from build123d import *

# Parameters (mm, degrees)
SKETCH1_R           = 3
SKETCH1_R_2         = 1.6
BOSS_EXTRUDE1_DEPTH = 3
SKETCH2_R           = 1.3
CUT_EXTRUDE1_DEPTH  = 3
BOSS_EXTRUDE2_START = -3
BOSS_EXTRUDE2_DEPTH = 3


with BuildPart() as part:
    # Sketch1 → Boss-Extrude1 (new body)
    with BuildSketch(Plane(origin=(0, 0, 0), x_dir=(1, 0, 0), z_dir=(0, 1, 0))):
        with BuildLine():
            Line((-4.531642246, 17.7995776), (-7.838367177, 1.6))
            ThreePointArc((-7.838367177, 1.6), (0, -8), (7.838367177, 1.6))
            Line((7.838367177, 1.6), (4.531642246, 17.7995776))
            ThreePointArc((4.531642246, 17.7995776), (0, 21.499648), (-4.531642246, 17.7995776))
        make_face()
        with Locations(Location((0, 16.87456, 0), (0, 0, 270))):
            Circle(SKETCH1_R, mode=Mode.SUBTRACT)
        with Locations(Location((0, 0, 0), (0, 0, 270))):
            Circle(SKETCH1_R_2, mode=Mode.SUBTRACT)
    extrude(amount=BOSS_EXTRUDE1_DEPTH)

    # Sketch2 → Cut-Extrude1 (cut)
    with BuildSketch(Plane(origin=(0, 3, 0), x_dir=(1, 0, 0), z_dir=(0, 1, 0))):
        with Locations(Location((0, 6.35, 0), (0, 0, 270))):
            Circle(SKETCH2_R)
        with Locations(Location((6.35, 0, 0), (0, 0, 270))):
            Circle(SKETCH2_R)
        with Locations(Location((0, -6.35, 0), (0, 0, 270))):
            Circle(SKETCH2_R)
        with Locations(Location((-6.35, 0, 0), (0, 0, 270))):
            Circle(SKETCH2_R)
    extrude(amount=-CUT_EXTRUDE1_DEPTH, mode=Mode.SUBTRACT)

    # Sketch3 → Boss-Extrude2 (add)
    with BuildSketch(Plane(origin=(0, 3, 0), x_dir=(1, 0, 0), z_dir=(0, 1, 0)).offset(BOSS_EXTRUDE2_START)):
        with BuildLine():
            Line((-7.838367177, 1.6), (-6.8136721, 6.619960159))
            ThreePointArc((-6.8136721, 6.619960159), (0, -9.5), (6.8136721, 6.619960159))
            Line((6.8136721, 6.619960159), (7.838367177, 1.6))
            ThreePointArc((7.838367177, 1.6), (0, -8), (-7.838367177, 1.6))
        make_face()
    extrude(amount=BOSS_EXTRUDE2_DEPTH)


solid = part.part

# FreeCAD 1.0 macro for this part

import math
import FreeCAD as App
import Part
import Sketcher
Q = App.Units.Quantity

doc = App.newDocument("Part")
params = doc.addObject("Spreadsheet::Sheet", "Params")
for row, (alias, value) in enumerate([
    ("sketch1_diameter", "6 mm"),
    ("sketch1_radius", "8 mm"),
    ("sketch1_diameter2", "3.2 mm"),
    ("pad1_length", "3 mm"),
    ("sketch2_diameter", "2.6 mm"),
    ("pocket1_length", "3 mm"),
    ("sketch3_radius", "8 mm"),
    ("sketch3_radius2", "9.5 mm"),
    ("pad2_length", "3 mm"),
], start=1):
    params.set(f"A{row}", alias)
    params.set(f"B{row}", "=" + value)
    params.setAlias(f"B{row}", alias)

body = doc.addObject("PartDesign::Body", "Body")

# Sketch on XZ plane
sketch1 = body.newObject("Sketcher::SketchObject", "Sketch")
sketch1.AttachmentSupport = (doc.getObject("XZ_Plane"), [""])
sketch1.MapMode = "FlatFace"
sketch1.addGeometry([
    Part.LineSegment(App.Vector(-4.5, -17.8, 0), App.Vector(-7.8, -1.6, 0)),  # 0
    Part.ArcOfCircle(Part.Circle(App.Vector(0, 0, 0), App.Vector(0, 0, 1), 8), math.radians(-12), math.radians(192)),  # 1
    Part.LineSegment(App.Vector(7.8, -1.6, 0), App.Vector(4.5, -17.8, 0)),  # 2
    Part.ArcOfCircle(Part.Circle(App.Vector(0, -16.9, 0), App.Vector(0, 0, 1), 4.6), math.radians(-168), math.radians(-12)),  # 3
    Part.Circle(App.Vector(0, 0, 0), App.Vector(0, 0, 1), 1.6),  # 4
    Part.Circle(App.Vector(0, -16.9, 0), App.Vector(0, 0, 1), 3),  # 5
], False)
sketch1.addConstraint([
    Sketcher.Constraint("Tangent", 0, 2, 1, 2),
    Sketcher.Constraint("Tangent", 1, 1, 2, 1),
    Sketcher.Constraint("Tangent", 2, 2, 3, 2),
    Sketcher.Constraint("Tangent", 3, 1, 0, 1),
    Sketcher.Constraint("Coincident", 1, 3, -1, 1),
    Sketcher.Constraint("Coincident", 4, 3, -1, 1),
    Sketcher.Constraint("Coincident", 5, 3, 3, 3),
    Sketcher.Constraint("PointOnObject", 3, 3, -2),
    Sketcher.Constraint("Diameter", 5, Q("6 mm")),
    Sketcher.Constraint("Radius", 1, Q("8 mm")),
    Sketcher.Constraint("Diameter", 4, Q("3.2 mm")),
    Sketcher.Constraint("DistanceY", 0, 2, -1, 1, Q("1.6 mm")),
    Sketcher.Constraint("Radius", 3, Q("4.625088 mm")),
])
sketch1.setExpression("Constraints[8]", "Params.sketch1_diameter")
sketch1.setExpression("Constraints[9]", "Params.sketch1_radius")
sketch1.setExpression("Constraints[10]", "Params.sketch1_diameter2")
pad1 = body.newObject("PartDesign::Pad", "Pad")
pad1.Profile = sketch1
pad1.setExpression("Length", "Params.pad1_length")
pad1.Reversed = True

# Sketch on XZ plane
sketch2 = body.newObject("Sketcher::SketchObject", "Sketch001")
sketch2.AttachmentSupport = (doc.getObject("XZ_Plane"), [""])
sketch2.MapMode = "FlatFace"
sketch2.AttachmentOffset = App.Placement(App.Vector(0, 0, -3), App.Rotation())
sketch2.addGeometry([
    Part.Circle(App.Vector(0, -6.3, 0), App.Vector(0, 0, 1), 1.3),
    Part.Circle(App.Vector(6.3, 0, 0), App.Vector(0, 0, 1), 1.3),
    Part.Circle(App.Vector(0, 6.3, 0), App.Vector(0, 0, 1), 1.3),
    Part.Circle(App.Vector(-6.3, 0, 0), App.Vector(0, 0, 1), 1.3),
], False)
sketch2.addConstraint([
    Sketcher.Constraint("Equal", 0, 1),
    Sketcher.Constraint("Equal", 1, 2),
    Sketcher.Constraint("Equal", 2, 3),
    Sketcher.Constraint("Symmetric", 0, 3, 2, 3, -1, 1),
    Sketcher.Constraint("Symmetric", 1, 3, 3, 3, -1, 1),
    Sketcher.Constraint("PointOnObject", 0, 3, -2),
    Sketcher.Constraint("PointOnObject", 1, 3, -1),
    Sketcher.Constraint("Diameter", 0, Q("2.6 mm")),
    Sketcher.Constraint("DistanceY", 0, 3, 2, 3, Q("12.7 mm")),
    Sketcher.Constraint("DistanceX", 3, 3, 1, 3, Q("12.7 mm")),
])
sketch2.setExpression("Constraints[7]", "Params.sketch2_diameter")
pocket1 = body.newObject("PartDesign::Pocket", "Pocket")
pocket1.Profile = sketch2
pocket1.setExpression("Length", "Params.pocket1_length")
pocket1.Reversed = True

# Sketch on XZ plane
sketch3 = body.newObject("Sketcher::SketchObject", "Sketch002")
sketch3.AttachmentSupport = (doc.getObject("XZ_Plane"), [""])
sketch3.MapMode = "FlatFace"
sketch3.addGeometry([
    Part.LineSegment(App.Vector(-8, -2, 0), App.Vector(-7, -7, 0)),
    Part.ArcOfCircle(Part.Circle(App.Vector(0, 0, 0), App.Vector(0, 0, 1), 10), math.radians(-44), math.radians(224)),
    Part.LineSegment(App.Vector(7, -7, 0), App.Vector(8, -2, 0)),
    Part.ArcOfCircle(Part.Circle(App.Vector(0, 0, 0), App.Vector(0, 0, 1), 8), math.radians(-12), math.radians(192)),
], False)
sketch3.addConstraint([
    Sketcher.Constraint("Coincident", 0, 2, 1, 2),
    Sketcher.Constraint("Coincident", 1, 1, 2, 1),
    Sketcher.Constraint("Tangent", 2, 2, 3, 1),
    Sketcher.Constraint("Tangent", 3, 2, 0, 1),
    Sketcher.Constraint("Coincident", 1, 3, -1, 1),
    Sketcher.Constraint("Coincident", 3, 3, -1, 1),
    Sketcher.Constraint("Horizontal", 0, 2, 1, 1),
    Sketcher.Constraint("Radius", 3, Q("8 mm")),
    Sketcher.Constraint("Radius", 1, Q("9.5 mm")),
    Sketcher.Constraint("DistanceY", 2, 2, -1, 1, Q("1.6 mm")),
])
sketch3.setExpression("Constraints[7]", "Params.sketch3_radius")
sketch3.setExpression("Constraints[8]", "Params.sketch3_radius2")
pad2 = body.newObject("PartDesign::Pad", "Pad001")
pad2.Profile = sketch3
pad2.setExpression("Length", "Params.pad2_length")
pad2.Reversed = True

doc.recompute()
